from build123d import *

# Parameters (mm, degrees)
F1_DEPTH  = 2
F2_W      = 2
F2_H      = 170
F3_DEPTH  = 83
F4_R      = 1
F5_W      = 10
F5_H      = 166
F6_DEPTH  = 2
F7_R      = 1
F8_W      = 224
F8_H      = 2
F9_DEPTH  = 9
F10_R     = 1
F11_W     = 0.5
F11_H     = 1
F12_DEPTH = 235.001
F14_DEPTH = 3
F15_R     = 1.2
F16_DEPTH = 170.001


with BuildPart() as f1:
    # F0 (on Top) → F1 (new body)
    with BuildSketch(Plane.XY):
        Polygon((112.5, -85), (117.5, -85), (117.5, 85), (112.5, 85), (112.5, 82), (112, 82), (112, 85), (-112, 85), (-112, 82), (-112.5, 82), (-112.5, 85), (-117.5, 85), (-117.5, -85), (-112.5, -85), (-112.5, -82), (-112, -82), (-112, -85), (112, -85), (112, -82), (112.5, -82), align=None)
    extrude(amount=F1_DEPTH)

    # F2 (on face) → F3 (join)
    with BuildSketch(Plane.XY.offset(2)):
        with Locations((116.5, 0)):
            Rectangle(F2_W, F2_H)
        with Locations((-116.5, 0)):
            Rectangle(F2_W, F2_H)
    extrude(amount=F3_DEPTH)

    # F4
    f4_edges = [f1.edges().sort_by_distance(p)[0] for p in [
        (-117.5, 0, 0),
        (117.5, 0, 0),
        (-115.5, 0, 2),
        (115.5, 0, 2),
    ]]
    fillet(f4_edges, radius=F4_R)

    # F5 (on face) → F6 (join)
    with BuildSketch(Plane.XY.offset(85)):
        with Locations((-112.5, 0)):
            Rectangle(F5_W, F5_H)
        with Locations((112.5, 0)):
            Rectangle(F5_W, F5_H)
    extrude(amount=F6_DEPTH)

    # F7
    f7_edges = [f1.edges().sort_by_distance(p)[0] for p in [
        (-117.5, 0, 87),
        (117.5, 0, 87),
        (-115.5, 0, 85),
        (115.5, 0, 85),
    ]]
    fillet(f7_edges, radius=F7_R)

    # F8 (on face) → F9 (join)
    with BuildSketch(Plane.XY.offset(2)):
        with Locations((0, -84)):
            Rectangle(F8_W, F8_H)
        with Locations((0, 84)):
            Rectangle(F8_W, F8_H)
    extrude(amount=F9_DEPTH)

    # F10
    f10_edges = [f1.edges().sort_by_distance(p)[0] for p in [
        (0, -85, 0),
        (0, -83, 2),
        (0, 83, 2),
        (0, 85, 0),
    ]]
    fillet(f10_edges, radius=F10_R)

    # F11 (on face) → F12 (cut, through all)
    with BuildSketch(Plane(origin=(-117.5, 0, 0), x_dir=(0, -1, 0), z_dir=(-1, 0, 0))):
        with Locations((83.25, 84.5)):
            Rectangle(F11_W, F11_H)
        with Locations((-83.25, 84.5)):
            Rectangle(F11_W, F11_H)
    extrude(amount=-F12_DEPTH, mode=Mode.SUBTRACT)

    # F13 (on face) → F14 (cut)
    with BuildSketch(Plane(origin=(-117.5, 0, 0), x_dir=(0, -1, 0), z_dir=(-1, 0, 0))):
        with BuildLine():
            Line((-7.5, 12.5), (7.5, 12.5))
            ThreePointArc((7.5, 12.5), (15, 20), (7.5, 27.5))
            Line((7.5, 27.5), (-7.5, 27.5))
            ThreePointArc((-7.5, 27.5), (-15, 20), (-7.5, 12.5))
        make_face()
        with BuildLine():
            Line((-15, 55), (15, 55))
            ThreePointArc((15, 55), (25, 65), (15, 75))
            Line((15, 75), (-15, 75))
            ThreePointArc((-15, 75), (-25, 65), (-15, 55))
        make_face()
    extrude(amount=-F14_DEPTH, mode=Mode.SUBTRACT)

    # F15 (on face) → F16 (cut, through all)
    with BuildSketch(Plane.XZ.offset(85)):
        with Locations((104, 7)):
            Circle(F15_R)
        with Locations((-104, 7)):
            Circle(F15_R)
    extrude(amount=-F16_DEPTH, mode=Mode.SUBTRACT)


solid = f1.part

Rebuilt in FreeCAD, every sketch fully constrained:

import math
import FreeCAD as App
import Part
import Sketcher

V = App.Vector
Q = App.Units.Quantity


def edges_at(feature, points):
    """Names of the edges that pass closest to the given points."""
    edges = feature.Shape.Edges
    near = lambda p: min(range(len(edges)), key=lambda i: edges[i].distToShape(Part.Vertex(*p))[0])
    return sorted({f"Edge{near(p) + 1}" for p in points})


def add_polygon(sketch, points):
    """Adds a closed chain of lines whose ends are joined by coincident constraints."""
    first, n = sketch.GeometryCount, len(points)
    for a, b in zip(points, points[1:] + points[:1]):
        sketch.addGeometry(Part.LineSegment(App.Vector(*a, 0), App.Vector(*b, 0)), False)
    for i in range(n):
        sketch.addConstraint(Sketcher.Constraint("Coincident", first + i, 2, first + (i + 1) % n, 1))

doc = App.newDocument("Part")
body = doc.addObject("PartDesign::Body", "Body")

# Sketch on XY plane
sketch1 = body.newObject("Sketcher::SketchObject", "Sketch")
sketch1.AttachmentSupport = (doc.getObject("XY_Plane"), [""])
sketch1.MapMode = "FlatFace"
add_polygon(sketch1, [(112.5, -85), (117.5, -85), (117.5, 85), (112.5, 85), (112.5, 82), (112, 82), (112, 85), (-112, 85), (-112, 82), (-112.5, 82), (-112.5, 85), (-117.5, 85), (-117.5, -85), (-112.5, -85), (-112.5, -82), (-112, -82), (-112, -85), (112, -85), (112, -82), (112.5, -82)])  # lines 0-19
sketch1.addConstraint([
    Sketcher.Constraint("Horizontal", 0),
    Sketcher.Constraint("Vertical", 1),
    Sketcher.Constraint("Horizontal", 2),
    Sketcher.Constraint("Vertical", 3),
    Sketcher.Constraint("Horizontal", 4),
    Sketcher.Constraint("Vertical", 5),
    Sketcher.Constraint("Horizontal", 6),
    Sketcher.Constraint("Vertical", 7),
    Sketcher.Constraint("Horizontal", 8),
    Sketcher.Constraint("Vertical", 9),
    Sketcher.Constraint("Horizontal", 10),
    Sketcher.Constraint("Vertical", 11),
    Sketcher.Constraint("Horizontal", 12),
    Sketcher.Constraint("Vertical", 13),
    Sketcher.Constraint("Horizontal", 14),
    Sketcher.Constraint("Vertical", 15),
    Sketcher.Constraint("Horizontal", 16),
    Sketcher.Constraint("Vertical", 17),
    Sketcher.Constraint("Horizontal", 18),
    Sketcher.Constraint("Vertical", 19),
    Sketcher.Constraint("Symmetric", 0, 2, 10, 2, -1, 1),
    Sketcher.Constraint("Symmetric", 2, 2, 12, 2, -1, 1),
    Sketcher.Constraint("Symmetric", 4, 2, 14, 2, -1, 1),
    Sketcher.Constraint("Symmetric", 6, 2, 16, 2, -1, 1),
    Sketcher.Constraint("Symmetric", 8, 2, 18, 2, -1, 1),
    Sketcher.Constraint("Symmetric", 4, 2, 7, 2, -2),
    Sketcher.Constraint("Symmetric", 2, 2, 9, 2, -2),
    Sketcher.Constraint("Horizontal", 2, 2, 5, 2),
    Sketcher.Constraint("DistanceX", 0, 1, 0, 2, Q("5 mm")),
    Sketcher.Constraint("DistanceX", 6, 2, 6, 1, Q("224 mm")),
    Sketcher.Constraint("DistanceY", 1, 1, 1, 2, Q("170 mm")),
    Sketcher.Constraint("DistanceY", 3, 2, 3, 1, Q("3 mm")),
    Sketcher.Constraint("DistanceX", 4, 2, 4, 1, Q("0.5 mm")),
])
pad1 = body.newObject("PartDesign::Pad", "Pad")
pad1.Profile = sketch1
pad1.Length = 2

# Sketch on XY plane
sketch2 = body.newObject("Sketcher::SketchObject", "Sketch001")
sketch2.AttachmentSupport = (doc.getObject("XY_Plane"), [""])
sketch2.MapMode = "FlatFace"
sketch2.AttachmentOffset = App.Placement(V(0, 0, 2), App.Rotation())
add_polygon(sketch2, [(115.5, 85), (115.5, -85), (117.5, -85), (117.5, 85)])  # lines 0-3
add_polygon(sketch2, [(-117.5, 85), (-117.5, -85), (-115.5, -85), (-115.5, 85)])  # lines 4-7
sketch2.addConstraint([
    Sketcher.Constraint("Vertical", 0),
    Sketcher.Constraint("Horizontal", 1),
    Sketcher.Constraint("Vertical", 2),
    Sketcher.Constraint("Horizontal", 3),
    Sketcher.Constraint("Vertical", 4),
    Sketcher.Constraint("Horizontal", 5),
    Sketcher.Constraint("Vertical", 6),
    Sketcher.Constraint("Horizontal", 7),
    Sketcher.Constraint("Symmetric", 2, 2, 4, 2, -1, 1),
    Sketcher.Constraint("Symmetric", 0, 2, 6, 2, -1, 1),
    Sketcher.Constraint("Horizontal", 1, 2, 4, 2),
    Sketcher.Constraint("DistanceX", 1, 1, 1, 2, Q("2 mm")),
    Sketcher.Constraint("DistanceY", 0, 2, 0, 1, Q("170 mm")),
    Sketcher.Constraint("DistanceX", 4, 2, 0, 2, Q("233 mm")),
])
pad2 = body.newObject("PartDesign::Pad", "Pad001")
pad2.Profile = sketch2
pad2.Length = 83
doc.recompute()

fillet = body.newObject("PartDesign::Fillet", "Fillet")
fillet.Base = (pad2, edges_at(pad2, [
    (-117.5, 0, 0),
    (117.5, 0, 0),
    (-115.5, 0, 2),
    (115.5, 0, 2),
]))
fillet.Radius = 1

# Sketch on XY plane
sketch3 = body.newObject("Sketcher::SketchObject", "Sketch002")
sketch3.AttachmentSupport = (doc.getObject("XY_Plane"), [""])
sketch3.MapMode = "FlatFace"
sketch3.AttachmentOffset = App.Placement(V(0, 0, 85), App.Rotation())
add_polygon(sketch3, [(-118, 83), (-118, -83), (-108, -83), (-108, 83)])  # lines 0-3
add_polygon(sketch3, [(108, 83), (108, -83), (118, -83), (118, 83)])  # lines 4-7
sketch3.addConstraint([
    Sketcher.Constraint("Vertical", 0),
    Sketcher.Constraint("Horizontal", 1),
    Sketcher.Constraint("Vertical", 2),
    Sketcher.Constraint("Horizontal", 3),
    Sketcher.Constraint("Vertical", 4),
    Sketcher.Constraint("Horizontal", 5),
    Sketcher.Constraint("Vertical", 6),
    Sketcher.Constraint("Horizontal", 7),
    Sketcher.Constraint("Symmetric", 2, 2, 4, 2, -1, 1),
    Sketcher.Constraint("Symmetric", 0, 2, 6, 2, -1, 1),
    Sketcher.Constraint("Horizontal", 1, 2, 4, 2),
    Sketcher.Constraint("DistanceX", 1, 1, 1, 2, Q("10 mm")),
    Sketcher.Constraint("DistanceY", 0, 2, 0, 1, Q("166 mm")),
    Sketcher.Constraint("DistanceX", 1, 2, 4, 2, Q("215 mm")),
])
pad3 = body.newObject("PartDesign::Pad", "Pad002")
pad3.Profile = sketch3
pad3.Length = 2
doc.recompute()

fillet2 = body.newObject("PartDesign::Fillet", "Fillet001")
fillet2.Base = (pad3, edges_at(pad3, [
    (-117.5, 0, 87),
    (117.5, 0, 87),
    (-115.5, 0, 85),
    (115.5, 0, 85),
]))
fillet2.Radius = 1

# Sketch on XY plane
sketch4 = body.newObject("Sketcher::SketchObject", "Sketch003")
sketch4.AttachmentSupport = (doc.getObject("XY_Plane"), [""])
sketch4.MapMode = "FlatFace"
sketch4.AttachmentOffset = App.Placement(V(0, 0, 2), App.Rotation())
add_polygon(sketch4, [(-112, -83), (-112, -85), (112, -85), (112, -83)])  # lines 0-3
add_polygon(sketch4, [(-112, 85), (-112, 83), (112, 83), (112, 85)])  # lines 4-7
sketch4.addConstraint([
    Sketcher.Constraint("Vertical", 0),
    Sketcher.Constraint("Horizontal", 1),
    Sketcher.Constraint("Vertical", 2),
    Sketcher.Constraint("Horizontal", 3),
    Sketcher.Constraint("Vertical", 4),
    Sketcher.Constraint("Horizontal", 5),
    Sketcher.Constraint("Vertical", 6),
    Sketcher.Constraint("Horizontal", 7),
    Sketcher.Constraint("Symmetric", 2, 2, 4, 2, -1, 1),
    Sketcher.Constraint("Symmetric", 0, 2, 6, 2, -1, 1),
    Sketcher.Constraint("Vertical", 3, 2, 4, 2),
    Sketcher.Constraint("DistanceX", 1, 1, 1, 2, Q("224 mm")),
    Sketcher.Constraint("DistanceY", 0, 2, 0, 1, Q("2 mm")),
    Sketcher.Constraint("DistanceY", 0, 2, -1, 1, Q("85 mm")),
])
pad4 = body.newObject("PartDesign::Pad", "Pad003")
pad4.Profile = sketch4
pad4.Length = 9
doc.recompute()

fillet3 = body.newObject("PartDesign::Fillet", "Fillet002")
fillet3.Base = (pad4, edges_at(pad4, [
    (0, -85, 0),
    (0, -83, 2),
    (0, 83, 2),
    (0, 85, 0),
]))
fillet3.Radius = 1

# Sketch on YZ plane
sketch5 = body.newObject("Sketcher::SketchObject", "Sketch004")
sketch5.AttachmentSupport = (doc.getObject("YZ_Plane"), [""])
sketch5.MapMode = "FlatFace"
sketch5.AttachmentOffset = App.Placement(V(0, 0, -117.5), App.Rotation())
add_polygon(sketch5, [(-83, 85), (-83, 84), (-83.5, 84), (-83.5, 85)])  # lines 0-3
add_polygon(sketch5, [(83.5, 85), (83.5, 84), (83, 84), (83, 85)])  # lines 4-7
sketch5.addConstraint([
    Sketcher.Constraint("Vertical", 0),
    Sketcher.Constraint("Horizontal", 1),
    Sketcher.Constraint("Vertical", 2),
    Sketcher.Constraint("Horizontal", 3),
    Sketcher.Constraint("Vertical", 4),
    Sketcher.Constraint("Horizontal", 5),
    Sketcher.Constraint("Vertical", 6),
    Sketcher.Constraint("Horizontal", 7),
    Sketcher.Constraint("Symmetric", 1, 2, 4, 2, -2),
    Sketcher.Constraint("Symmetric", 3, 2, 6, 2, -2),
    Sketcher.Constraint("DistanceY", 0, 2, 0, 1, Q("1 mm")),
    Sketcher.Constraint("DistanceX", 1, 2, 1, 1, Q("0.5 mm")),
    Sketcher.Constraint("DistanceX", 0, 2, -1, 1, Q("83 mm")),
    Sketcher.Constraint("DistanceY", -1, 1, 0, 2, Q("84 mm")),
])
pocket1 = body.newObject("PartDesign::Pocket", "Pocket")
pocket1.Profile = sketch5
pocket1.Type = "ThroughAll"
pocket1.Reversed = True

# Sketch on YZ plane
sketch6 = body.newObject("Sketcher::SketchObject", "Sketch005")
sketch6.AttachmentSupport = (doc.getObject("YZ_Plane"), [""])
sketch6.MapMode = "FlatFace"
sketch6.AttachmentOffset = App.Placement(V(0, 0, -117.5), App.Rotation())
sketch6.addGeometry([
    Part.LineSegment(V(8, 12, 0), V(-8, 12, 0)),  # 0
    Part.ArcOfCircle(Part.Circle(V(-8, 20, 0), V(0, 0, 1), 8), math.radians(90), math.radians(270)),  # 1
    Part.LineSegment(V(-8, 28, 0), V(8, 28, 0)),  # 2
    Part.ArcOfCircle(Part.Circle(V(8, 20, 0), V(0, 0, 1), 8), math.radians(-90), math.radians(90)),  # 3
    Part.LineSegment(V(15, 55, 0), V(-15, 55, 0)),  # 4
    Part.ArcOfCircle(Part.Circle(V(-15, 65, 0), V(0, 0, 1), 10), math.radians(90), math.radians(270)),  # 5
    Part.LineSegment(V(-15, 75, 0), V(15, 75, 0)),  # 6
    Part.ArcOfCircle(Part.Circle(V(15, 65, 0), V(0, 0, 1), 10), math.radians(-90), math.radians(90)),  # 7
], False)
sketch6.addConstraint([
    Sketcher.Constraint("Tangent", 0, 2, 1, 2),
    Sketcher.Constraint("Tangent", 1, 1, 2, 1),
    Sketcher.Constraint("Tangent", 2, 2, 3, 2),
    Sketcher.Constraint("Tangent", 3, 1, 0, 1),
    Sketcher.Constraint("Tangent", 4, 2, 5, 2),
    Sketcher.Constraint("Tangent", 5, 1, 6, 1),
    Sketcher.Constraint("Tangent", 6, 2, 7, 2),
    Sketcher.Constraint("Tangent", 7, 1, 4, 1),
    Sketcher.Constraint("Horizontal", 0),
    Sketcher.Constraint("Horizontal", 2),
    Sketcher.Constraint("Horizontal", 4),
    Sketcher.Constraint("Horizontal", 6),
    Sketcher.Constraint("Radius", 5, Q("10 mm")),
    Sketcher.Constraint("Radius", 1, Q("7.5 mm")),
    Sketcher.Constraint("DistanceX", 0, 2, 0, 1, Q("15 mm")),
    Sketcher.Constraint("DistanceX", 4, 2, 4, 1, Q("30 mm")),
    Sketcher.Constraint("DistanceY", -1, 1, 1, 3, Q("20 mm")),
    Sketcher.Constraint("DistanceX", 5, 3, -1, 1, Q("15 mm")),
    Sketcher.Constraint("DistanceY", -1, 1, 5, 3, Q("65 mm")),
    Sketcher.Constraint("DistanceX", 1, 3, -1, 1, Q("7.5 mm")),
])
pocket2 = body.newObject("PartDesign::Pocket", "Pocket001")
pocket2.Profile = sketch6
pocket2.Length = 3
pocket2.Reversed = True

# Sketch on XZ plane
sketch7 = body.newObject("Sketcher::SketchObject", "Sketch006")
sketch7.AttachmentSupport = (doc.getObject("XZ_Plane"), [""])
sketch7.MapMode = "FlatFace"
sketch7.AttachmentOffset = App.Placement(V(0, 0, 85), App.Rotation())
sketch7.addGeometry([
    Part.Circle(V(104, 7, 0), V(0, 0, 1), 1.2),
    Part.Circle(V(-104, 7, 0), V(0, 0, 1), 1.2),
], False)
sketch7.addConstraint([
    Sketcher.Constraint("Equal", 0, 1),
    Sketcher.Constraint("Symmetric", 0, 3, 1, 3, -2),
    Sketcher.Constraint("Diameter", 0, Q("2.4 mm")),
    Sketcher.Constraint("DistanceX", -1, 1, 0, 3, Q("104 mm")),
    Sketcher.Constraint("DistanceY", -1, 1, 0, 3, Q("7 mm")),
])
pocket3 = body.newObject("PartDesign::Pocket", "Pocket002")
pocket3.Profile = sketch7
pocket3.Type = "ThroughAll"

doc.recompute()
